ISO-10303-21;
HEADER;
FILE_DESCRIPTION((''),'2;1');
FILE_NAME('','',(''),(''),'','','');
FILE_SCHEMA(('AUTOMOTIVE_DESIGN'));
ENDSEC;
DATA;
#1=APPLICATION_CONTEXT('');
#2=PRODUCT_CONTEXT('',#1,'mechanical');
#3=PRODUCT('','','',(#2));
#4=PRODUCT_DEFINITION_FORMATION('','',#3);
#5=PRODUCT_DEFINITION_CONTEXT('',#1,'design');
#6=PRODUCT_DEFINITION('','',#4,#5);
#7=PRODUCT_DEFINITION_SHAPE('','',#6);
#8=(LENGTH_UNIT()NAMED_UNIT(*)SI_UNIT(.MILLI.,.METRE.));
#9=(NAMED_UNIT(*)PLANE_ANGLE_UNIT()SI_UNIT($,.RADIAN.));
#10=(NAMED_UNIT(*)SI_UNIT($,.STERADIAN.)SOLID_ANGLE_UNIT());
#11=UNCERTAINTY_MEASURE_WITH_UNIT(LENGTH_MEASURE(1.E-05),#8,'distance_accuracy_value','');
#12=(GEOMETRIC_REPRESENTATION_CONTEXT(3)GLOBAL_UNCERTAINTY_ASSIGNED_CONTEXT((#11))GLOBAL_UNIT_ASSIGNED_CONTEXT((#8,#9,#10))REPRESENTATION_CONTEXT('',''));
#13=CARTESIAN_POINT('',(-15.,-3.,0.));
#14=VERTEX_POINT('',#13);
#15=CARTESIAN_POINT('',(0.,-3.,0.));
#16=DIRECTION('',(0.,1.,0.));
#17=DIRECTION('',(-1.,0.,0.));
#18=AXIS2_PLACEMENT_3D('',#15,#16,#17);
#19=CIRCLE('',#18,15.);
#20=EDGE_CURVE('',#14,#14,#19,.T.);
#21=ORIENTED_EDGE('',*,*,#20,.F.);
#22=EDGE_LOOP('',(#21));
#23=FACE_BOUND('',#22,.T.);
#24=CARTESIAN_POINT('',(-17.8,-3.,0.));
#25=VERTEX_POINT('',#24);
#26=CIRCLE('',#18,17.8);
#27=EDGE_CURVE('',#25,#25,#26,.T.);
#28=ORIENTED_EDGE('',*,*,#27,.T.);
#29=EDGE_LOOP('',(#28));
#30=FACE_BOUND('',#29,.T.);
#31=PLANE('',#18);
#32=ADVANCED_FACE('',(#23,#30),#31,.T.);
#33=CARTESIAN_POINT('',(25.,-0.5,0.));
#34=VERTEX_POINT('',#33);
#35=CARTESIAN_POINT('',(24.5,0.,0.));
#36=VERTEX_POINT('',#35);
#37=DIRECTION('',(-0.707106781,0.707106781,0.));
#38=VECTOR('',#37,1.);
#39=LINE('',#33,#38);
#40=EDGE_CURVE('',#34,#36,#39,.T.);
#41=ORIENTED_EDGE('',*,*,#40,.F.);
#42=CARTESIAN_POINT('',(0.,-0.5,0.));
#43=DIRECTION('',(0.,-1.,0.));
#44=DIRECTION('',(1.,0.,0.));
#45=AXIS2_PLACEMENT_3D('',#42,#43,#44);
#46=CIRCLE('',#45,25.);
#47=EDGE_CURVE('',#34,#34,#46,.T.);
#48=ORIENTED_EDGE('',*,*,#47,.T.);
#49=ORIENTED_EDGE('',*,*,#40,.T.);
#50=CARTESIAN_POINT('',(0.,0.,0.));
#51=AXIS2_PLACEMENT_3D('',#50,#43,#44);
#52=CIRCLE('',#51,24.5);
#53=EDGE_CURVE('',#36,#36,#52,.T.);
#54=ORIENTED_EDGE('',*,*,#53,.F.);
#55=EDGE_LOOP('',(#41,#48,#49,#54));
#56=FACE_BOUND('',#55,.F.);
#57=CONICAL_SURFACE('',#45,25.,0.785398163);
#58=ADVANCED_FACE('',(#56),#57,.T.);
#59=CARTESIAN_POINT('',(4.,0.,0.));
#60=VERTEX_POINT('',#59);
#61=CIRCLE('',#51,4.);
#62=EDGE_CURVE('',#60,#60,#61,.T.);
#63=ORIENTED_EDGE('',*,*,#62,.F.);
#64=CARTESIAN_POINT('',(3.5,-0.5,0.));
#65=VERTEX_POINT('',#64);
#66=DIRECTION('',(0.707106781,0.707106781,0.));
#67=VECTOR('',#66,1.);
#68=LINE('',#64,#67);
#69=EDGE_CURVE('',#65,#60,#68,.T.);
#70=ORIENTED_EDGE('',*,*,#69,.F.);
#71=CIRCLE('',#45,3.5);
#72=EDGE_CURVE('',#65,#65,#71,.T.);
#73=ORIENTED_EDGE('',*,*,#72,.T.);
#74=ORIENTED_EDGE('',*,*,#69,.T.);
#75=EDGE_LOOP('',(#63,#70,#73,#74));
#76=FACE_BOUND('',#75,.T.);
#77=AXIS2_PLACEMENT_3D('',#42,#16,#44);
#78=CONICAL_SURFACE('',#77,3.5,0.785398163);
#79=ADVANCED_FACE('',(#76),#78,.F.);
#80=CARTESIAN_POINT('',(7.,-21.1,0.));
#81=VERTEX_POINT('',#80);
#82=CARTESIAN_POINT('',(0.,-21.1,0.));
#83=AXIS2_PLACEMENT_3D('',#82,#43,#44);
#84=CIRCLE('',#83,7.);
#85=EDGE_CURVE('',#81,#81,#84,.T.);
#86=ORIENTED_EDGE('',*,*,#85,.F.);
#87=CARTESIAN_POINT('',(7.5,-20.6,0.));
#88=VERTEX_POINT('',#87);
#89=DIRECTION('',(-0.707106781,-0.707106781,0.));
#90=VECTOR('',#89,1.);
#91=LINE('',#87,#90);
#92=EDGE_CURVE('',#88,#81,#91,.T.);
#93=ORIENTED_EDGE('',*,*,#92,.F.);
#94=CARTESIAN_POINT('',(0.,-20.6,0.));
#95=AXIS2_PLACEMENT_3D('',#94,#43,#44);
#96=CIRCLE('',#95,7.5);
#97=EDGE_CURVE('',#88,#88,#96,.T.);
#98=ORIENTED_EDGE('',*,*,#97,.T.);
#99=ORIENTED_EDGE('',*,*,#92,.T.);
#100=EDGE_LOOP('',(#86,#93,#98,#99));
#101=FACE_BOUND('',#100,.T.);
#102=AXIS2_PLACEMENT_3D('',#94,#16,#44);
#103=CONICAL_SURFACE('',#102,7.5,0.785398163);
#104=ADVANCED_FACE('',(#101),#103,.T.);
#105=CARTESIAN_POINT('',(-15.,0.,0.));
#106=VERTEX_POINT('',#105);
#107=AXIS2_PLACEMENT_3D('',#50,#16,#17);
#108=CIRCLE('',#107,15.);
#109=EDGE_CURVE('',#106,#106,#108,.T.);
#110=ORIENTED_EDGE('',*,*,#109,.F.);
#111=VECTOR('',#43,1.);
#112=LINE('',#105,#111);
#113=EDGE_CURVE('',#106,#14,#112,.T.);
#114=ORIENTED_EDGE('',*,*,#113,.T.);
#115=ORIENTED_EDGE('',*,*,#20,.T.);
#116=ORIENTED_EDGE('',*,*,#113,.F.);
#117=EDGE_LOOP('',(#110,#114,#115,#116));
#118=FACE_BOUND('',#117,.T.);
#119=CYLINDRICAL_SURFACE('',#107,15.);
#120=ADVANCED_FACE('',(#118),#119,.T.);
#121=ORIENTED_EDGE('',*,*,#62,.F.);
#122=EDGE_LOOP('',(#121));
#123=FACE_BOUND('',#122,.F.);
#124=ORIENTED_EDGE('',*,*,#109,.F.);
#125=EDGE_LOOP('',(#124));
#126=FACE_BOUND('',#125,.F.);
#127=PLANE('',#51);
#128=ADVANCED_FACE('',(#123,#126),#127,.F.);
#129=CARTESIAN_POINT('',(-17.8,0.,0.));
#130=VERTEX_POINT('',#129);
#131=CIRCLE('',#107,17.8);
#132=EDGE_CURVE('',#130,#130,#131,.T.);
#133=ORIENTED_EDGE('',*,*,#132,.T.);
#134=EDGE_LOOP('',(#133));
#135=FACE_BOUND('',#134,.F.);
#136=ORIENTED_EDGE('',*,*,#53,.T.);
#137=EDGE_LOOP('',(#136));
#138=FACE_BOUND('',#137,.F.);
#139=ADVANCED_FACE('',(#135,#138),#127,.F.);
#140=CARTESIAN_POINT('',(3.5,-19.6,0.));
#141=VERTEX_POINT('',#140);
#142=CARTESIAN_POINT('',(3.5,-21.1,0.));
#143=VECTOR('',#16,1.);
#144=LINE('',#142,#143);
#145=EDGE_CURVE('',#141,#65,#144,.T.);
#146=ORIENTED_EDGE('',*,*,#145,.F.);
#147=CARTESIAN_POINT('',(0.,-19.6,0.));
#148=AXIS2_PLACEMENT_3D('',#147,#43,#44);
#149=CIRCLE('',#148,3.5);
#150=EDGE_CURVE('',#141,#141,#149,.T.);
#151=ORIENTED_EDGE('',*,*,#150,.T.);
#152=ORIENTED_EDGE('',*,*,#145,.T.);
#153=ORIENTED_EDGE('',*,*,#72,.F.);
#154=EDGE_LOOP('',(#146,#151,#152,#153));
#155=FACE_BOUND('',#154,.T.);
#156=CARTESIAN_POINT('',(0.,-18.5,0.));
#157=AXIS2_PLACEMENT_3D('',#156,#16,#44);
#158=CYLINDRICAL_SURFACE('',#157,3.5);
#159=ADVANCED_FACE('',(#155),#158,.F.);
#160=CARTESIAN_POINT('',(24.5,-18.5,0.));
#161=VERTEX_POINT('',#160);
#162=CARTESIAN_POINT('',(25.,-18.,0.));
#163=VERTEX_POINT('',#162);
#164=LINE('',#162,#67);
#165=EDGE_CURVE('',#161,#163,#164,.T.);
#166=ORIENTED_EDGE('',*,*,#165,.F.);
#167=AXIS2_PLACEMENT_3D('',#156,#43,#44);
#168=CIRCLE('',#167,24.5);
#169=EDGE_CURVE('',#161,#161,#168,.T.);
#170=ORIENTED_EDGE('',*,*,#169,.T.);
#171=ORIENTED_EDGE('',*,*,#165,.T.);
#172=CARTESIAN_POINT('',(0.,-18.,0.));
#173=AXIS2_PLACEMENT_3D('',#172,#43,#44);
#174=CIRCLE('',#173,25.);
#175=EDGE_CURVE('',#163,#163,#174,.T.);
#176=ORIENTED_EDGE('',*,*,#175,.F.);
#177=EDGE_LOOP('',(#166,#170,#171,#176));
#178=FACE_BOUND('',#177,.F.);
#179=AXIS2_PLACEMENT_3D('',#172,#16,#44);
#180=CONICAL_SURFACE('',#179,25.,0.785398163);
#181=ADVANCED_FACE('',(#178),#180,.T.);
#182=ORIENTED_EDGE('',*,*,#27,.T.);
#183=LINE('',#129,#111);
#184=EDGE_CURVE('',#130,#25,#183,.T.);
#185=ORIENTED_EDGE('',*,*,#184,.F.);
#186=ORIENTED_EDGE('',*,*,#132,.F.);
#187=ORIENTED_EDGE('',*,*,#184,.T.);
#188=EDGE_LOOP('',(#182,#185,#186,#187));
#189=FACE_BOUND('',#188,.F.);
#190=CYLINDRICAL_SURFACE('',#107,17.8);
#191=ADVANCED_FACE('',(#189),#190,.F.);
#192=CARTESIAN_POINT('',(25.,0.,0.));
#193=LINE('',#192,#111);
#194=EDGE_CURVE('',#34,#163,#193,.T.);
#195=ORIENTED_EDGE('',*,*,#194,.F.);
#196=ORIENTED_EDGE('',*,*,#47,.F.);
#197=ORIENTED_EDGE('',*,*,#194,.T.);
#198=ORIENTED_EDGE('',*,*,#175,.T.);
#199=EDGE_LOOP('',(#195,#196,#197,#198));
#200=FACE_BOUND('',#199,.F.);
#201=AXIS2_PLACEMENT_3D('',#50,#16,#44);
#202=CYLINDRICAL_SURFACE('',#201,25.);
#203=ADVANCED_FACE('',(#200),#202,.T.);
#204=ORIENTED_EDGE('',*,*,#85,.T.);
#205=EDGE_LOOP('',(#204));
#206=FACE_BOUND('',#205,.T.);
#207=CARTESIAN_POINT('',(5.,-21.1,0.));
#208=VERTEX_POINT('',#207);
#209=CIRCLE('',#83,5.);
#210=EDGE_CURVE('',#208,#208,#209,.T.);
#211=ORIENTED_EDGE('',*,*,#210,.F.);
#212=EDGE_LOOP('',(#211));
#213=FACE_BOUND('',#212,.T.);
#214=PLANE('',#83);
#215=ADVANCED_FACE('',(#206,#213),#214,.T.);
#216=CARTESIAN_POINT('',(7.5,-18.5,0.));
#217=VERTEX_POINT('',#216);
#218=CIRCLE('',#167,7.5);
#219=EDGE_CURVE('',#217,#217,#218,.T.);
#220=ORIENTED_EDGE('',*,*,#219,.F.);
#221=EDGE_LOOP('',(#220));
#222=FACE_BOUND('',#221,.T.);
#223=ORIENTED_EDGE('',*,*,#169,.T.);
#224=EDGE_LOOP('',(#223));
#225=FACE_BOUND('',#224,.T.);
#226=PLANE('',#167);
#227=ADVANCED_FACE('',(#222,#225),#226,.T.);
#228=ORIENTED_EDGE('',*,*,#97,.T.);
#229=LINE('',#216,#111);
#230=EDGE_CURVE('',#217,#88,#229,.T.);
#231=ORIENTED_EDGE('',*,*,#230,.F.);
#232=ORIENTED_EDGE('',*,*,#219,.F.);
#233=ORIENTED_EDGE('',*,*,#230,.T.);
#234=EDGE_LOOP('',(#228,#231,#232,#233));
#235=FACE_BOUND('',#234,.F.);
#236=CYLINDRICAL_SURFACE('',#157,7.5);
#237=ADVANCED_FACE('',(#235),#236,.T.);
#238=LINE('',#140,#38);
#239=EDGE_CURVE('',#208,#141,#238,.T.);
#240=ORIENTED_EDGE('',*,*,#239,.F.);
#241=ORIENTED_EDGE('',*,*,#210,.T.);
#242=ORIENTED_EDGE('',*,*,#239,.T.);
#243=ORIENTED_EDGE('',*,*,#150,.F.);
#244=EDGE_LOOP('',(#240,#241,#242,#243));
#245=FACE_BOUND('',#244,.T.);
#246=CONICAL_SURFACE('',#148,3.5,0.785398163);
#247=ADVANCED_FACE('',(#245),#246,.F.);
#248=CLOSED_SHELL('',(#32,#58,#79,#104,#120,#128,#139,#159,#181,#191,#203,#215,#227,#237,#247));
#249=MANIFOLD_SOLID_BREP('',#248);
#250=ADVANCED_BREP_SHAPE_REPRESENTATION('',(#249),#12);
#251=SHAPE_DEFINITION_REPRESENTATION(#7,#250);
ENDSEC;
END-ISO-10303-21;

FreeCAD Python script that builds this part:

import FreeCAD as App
import Part
import Sketcher

V = App.Vector
Q = App.Units.Quantity


def edges_at(feature, points):
    """Names of the edges that pass closest to the given points."""
    edges = feature.Shape.Edges
    near = lambda p: min(range(len(edges)), key=lambda i: edges[i].distToShape(Part.Vertex(*p))[0])
    return sorted({f"Edge{near(p) + 1}" for p in points})

doc = App.newDocument("Part")
body = doc.addObject("PartDesign::Body", "Body")

# Sketch on XZ plane
sketch1 = body.newObject("Sketcher::SketchObject", "Sketch")
sketch1.AttachmentSupport = (doc.getObject("XZ_Plane"), [""])
sketch1.MapMode = "FlatFace"
sketch1.addGeometry([
    Part.Circle(V(0, 0, 0), V(0, 0, 1), 25),
    Part.Circle(V(0, 0, 0), V(0, 0, 1), 3.5),
], False)
sketch1.addConstraint([
    Sketcher.Constraint("Coincident", 0, 3, -1, 1),
    Sketcher.Constraint("Coincident", 1, 3, -1, 1),
    Sketcher.Constraint("Diameter", 0, Q("50 mm")),
    Sketcher.Constraint("Diameter", 1, Q("7 mm")),
])
pad1 = body.newObject("PartDesign::Pad", "Pad")
pad1.Profile = sketch1
pad1.Length = 18.5

# Sketch on XZ plane
sketch2 = body.newObject("Sketcher::SketchObject", "Sketch001")
sketch2.AttachmentSupport = (doc.getObject("XZ_Plane"), [""])
sketch2.MapMode = "FlatFace"
sketch2.AttachmentOffset = App.Placement(V(0, 0, 18.5), App.Rotation())
sketch2.addGeometry([
    Part.Circle(V(0, 0, 0), V(0, 0, 1), 7.5),
    Part.Circle(V(0, 0, 0), V(0, 0, 1), 3.5),
], False)
sketch2.addConstraint([
    Sketcher.Constraint("Coincident", 0, 3, -1, 1),
    Sketcher.Constraint("Coincident", 1, 3, -1, 1),
    Sketcher.Constraint("Diameter", 0, Q("15 mm")),
    Sketcher.Constraint("Diameter", 1, Q("7 mm")),
])
pad2 = body.newObject("PartDesign::Pad", "Pad001")
pad2.Profile = sketch2
pad2.Length = 2.6

# Sketch on XZ plane
sketch3 = body.newObject("Sketcher::SketchObject", "Sketch002")
sketch3.AttachmentSupport = (doc.getObject("XZ_Plane"), [""])
sketch3.MapMode = "FlatFace"
sketch3.addGeometry([
    Part.Circle(V(0, 0, 0), V(0, 0, 1), 18),
    Part.Circle(V(0, 0, 0), V(0, 0, 1), 15),
], False)
sketch3.addConstraint([
    Sketcher.Constraint("Coincident", 0, 3, -1, 1),
    Sketcher.Constraint("Coincident", 1, 3, -1, 1),
    Sketcher.Constraint("Diameter", 1, Q("30 mm")),
    Sketcher.Constraint("Diameter", 0, Q("35.6 mm")),
])
pocket1 = body.newObject("PartDesign::Pocket", "Pocket")
pocket1.Profile = sketch3
pocket1.Length = 3
pocket1.Reversed = True
doc.recompute()

chamfer = body.newObject("PartDesign::Chamfer", "Chamfer")
chamfer.Base = (pocket1, edges_at(pocket1, [
    (-25, 0, 0),
    (-25, -18.5, 0),
    (-3.5, 0, 0),
    (-7.5, -21.1, 0),
]))
chamfer.ChamferType = "Two distances"
chamfer.Size = 0.5
chamfer.Size2 = 0.5
doc.recompute()

chamfer2 = body.newObject("PartDesign::Chamfer", "Chamfer001")
chamfer2.Base = (chamfer, edges_at(chamfer, [(-3.5, -21.1, 0)]))
chamfer2.Size = 1.5

doc.recompute()
